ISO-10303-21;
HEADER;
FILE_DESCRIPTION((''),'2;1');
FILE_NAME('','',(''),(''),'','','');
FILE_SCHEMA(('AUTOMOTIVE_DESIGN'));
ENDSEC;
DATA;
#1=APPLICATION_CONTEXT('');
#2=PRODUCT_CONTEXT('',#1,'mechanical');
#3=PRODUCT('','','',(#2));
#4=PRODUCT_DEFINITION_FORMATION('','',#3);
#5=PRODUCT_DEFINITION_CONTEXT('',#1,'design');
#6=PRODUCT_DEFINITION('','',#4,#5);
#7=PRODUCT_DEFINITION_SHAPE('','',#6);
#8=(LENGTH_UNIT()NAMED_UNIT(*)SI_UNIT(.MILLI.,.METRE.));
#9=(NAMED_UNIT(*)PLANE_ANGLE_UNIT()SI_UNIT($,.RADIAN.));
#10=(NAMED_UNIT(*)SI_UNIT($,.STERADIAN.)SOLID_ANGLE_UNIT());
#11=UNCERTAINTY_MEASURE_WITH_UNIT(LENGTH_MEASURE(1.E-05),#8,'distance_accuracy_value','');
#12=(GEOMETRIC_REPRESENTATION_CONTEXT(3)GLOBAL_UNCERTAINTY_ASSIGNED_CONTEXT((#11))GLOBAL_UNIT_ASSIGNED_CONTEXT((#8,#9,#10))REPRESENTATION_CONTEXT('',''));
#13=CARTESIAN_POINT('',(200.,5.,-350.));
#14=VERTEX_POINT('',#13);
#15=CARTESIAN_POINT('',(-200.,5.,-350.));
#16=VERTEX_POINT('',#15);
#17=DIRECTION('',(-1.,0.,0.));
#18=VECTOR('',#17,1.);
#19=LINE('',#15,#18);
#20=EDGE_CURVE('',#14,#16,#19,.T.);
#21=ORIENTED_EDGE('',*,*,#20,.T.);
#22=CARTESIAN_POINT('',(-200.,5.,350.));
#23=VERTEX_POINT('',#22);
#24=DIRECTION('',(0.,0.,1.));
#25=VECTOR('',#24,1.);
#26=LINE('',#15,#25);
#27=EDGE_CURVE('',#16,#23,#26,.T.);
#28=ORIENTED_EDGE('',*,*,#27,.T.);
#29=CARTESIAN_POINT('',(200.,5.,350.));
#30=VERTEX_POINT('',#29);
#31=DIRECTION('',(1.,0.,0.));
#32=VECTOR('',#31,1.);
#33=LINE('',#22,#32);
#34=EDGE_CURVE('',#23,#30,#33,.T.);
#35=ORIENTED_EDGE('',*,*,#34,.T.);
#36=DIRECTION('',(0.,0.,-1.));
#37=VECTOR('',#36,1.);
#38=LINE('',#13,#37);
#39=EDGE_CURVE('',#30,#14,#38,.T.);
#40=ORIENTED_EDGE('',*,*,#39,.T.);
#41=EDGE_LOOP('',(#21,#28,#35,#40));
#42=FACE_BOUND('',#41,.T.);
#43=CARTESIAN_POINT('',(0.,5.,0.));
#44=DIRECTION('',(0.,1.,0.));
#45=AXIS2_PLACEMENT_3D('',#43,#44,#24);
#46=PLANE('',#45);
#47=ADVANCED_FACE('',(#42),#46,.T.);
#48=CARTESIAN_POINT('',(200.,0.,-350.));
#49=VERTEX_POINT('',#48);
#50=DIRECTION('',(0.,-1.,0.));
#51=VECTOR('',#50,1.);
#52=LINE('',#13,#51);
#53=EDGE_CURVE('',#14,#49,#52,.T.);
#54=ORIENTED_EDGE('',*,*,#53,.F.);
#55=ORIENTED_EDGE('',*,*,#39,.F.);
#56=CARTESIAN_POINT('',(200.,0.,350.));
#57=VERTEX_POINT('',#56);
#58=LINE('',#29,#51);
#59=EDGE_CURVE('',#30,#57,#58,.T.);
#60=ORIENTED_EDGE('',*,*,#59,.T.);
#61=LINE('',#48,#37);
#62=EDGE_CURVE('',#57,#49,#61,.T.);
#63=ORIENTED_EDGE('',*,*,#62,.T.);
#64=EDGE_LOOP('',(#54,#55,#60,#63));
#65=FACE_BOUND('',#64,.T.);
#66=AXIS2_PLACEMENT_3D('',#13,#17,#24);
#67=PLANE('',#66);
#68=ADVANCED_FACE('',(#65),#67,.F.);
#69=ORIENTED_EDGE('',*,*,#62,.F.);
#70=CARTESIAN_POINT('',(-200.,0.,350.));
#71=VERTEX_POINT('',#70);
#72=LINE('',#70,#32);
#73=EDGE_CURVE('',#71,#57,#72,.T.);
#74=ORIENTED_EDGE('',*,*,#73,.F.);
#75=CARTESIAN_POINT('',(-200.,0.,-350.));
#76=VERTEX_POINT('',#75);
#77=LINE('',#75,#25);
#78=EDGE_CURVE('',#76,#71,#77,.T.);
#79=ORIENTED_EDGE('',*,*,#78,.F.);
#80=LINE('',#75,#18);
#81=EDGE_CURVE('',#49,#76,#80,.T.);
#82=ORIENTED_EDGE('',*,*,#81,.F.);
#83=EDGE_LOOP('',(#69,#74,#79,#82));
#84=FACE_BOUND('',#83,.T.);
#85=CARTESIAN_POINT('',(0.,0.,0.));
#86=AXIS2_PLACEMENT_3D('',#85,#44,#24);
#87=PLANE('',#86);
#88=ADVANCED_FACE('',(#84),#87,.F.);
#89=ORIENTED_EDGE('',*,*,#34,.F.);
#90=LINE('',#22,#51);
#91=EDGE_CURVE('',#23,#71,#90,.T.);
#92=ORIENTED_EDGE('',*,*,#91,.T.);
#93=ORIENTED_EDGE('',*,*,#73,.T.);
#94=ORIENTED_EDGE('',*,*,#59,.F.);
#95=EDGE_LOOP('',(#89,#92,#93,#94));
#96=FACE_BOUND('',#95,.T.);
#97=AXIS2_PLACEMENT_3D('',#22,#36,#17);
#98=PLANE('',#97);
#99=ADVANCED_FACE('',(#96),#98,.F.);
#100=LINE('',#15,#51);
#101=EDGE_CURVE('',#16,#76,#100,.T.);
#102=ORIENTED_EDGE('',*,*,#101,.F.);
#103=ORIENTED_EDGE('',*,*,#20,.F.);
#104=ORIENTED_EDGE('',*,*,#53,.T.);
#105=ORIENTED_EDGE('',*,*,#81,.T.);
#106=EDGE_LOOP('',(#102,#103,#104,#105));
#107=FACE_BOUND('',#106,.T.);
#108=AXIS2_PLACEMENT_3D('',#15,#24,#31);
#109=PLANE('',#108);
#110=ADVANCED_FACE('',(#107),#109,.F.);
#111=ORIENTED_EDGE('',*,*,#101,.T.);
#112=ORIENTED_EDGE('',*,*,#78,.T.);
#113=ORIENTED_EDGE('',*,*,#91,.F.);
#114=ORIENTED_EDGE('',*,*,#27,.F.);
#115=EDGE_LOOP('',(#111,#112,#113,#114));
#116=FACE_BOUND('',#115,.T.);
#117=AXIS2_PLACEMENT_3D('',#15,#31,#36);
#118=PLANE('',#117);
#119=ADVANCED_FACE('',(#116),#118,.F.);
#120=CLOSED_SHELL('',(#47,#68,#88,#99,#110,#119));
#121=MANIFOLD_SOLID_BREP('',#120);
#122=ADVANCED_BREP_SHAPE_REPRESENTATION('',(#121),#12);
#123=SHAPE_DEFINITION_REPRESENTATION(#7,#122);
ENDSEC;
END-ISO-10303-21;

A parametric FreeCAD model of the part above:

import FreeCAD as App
import Part
import Sketcher

V = App.Vector
Q = App.Units.Quantity

doc = App.newDocument("Part")
body = doc.addObject("PartDesign::Body", "Body")

# Sketch on XZ plane
sketch1 = doc.addObject("Sketcher::SketchObject", "Sketch")
body.addObject(sketch1)
sketch1.AttachmentSupport = (doc.XZ_Plane, [""])
sketch1.MapMode = "FlatFace"
sketch1.addGeometry([
    Part.LineSegment(V(-200, -350, 0), V(-200, 350, 0)),
    Part.LineSegment(V(-200, 350, 0), V(200, 350, 0)),
    Part.LineSegment(V(200, 350, 0), V(200, -350, 0)),
    Part.LineSegment(V(200, -350, 0), V(-200, -350, 0)),
], False)
sketch1.addConstraint([
    Sketcher.Constraint("Coincident", 0, 2, 1, 1),
    Sketcher.Constraint("Coincident", 1, 2, 2, 1),
    Sketcher.Constraint("Coincident", 2, 2, 3, 1),
    Sketcher.Constraint("Coincident", 3, 2, 0, 1),
    Sketcher.Constraint("Vertical", 0),
    Sketcher.Constraint("Horizontal", 1),
    Sketcher.Constraint("Vertical", 2),
    Sketcher.Constraint("Horizontal", 3),
    Sketcher.Constraint("Symmetric", 0, 2, 2, 2, -1, 1),
    Sketcher.Constraint("DistanceX", 1, 1, 1, 2, Q("400 mm")),
    Sketcher.Constraint("DistanceY", 0, 1, 0, 2, Q("700 mm")),
])
pad1 = doc.addObject("PartDesign::Pad", "Pad")
body.addObject(pad1)
pad1.Profile = sketch1
pad1.Length = 5
pad1.Reversed = True

doc.recompute()
